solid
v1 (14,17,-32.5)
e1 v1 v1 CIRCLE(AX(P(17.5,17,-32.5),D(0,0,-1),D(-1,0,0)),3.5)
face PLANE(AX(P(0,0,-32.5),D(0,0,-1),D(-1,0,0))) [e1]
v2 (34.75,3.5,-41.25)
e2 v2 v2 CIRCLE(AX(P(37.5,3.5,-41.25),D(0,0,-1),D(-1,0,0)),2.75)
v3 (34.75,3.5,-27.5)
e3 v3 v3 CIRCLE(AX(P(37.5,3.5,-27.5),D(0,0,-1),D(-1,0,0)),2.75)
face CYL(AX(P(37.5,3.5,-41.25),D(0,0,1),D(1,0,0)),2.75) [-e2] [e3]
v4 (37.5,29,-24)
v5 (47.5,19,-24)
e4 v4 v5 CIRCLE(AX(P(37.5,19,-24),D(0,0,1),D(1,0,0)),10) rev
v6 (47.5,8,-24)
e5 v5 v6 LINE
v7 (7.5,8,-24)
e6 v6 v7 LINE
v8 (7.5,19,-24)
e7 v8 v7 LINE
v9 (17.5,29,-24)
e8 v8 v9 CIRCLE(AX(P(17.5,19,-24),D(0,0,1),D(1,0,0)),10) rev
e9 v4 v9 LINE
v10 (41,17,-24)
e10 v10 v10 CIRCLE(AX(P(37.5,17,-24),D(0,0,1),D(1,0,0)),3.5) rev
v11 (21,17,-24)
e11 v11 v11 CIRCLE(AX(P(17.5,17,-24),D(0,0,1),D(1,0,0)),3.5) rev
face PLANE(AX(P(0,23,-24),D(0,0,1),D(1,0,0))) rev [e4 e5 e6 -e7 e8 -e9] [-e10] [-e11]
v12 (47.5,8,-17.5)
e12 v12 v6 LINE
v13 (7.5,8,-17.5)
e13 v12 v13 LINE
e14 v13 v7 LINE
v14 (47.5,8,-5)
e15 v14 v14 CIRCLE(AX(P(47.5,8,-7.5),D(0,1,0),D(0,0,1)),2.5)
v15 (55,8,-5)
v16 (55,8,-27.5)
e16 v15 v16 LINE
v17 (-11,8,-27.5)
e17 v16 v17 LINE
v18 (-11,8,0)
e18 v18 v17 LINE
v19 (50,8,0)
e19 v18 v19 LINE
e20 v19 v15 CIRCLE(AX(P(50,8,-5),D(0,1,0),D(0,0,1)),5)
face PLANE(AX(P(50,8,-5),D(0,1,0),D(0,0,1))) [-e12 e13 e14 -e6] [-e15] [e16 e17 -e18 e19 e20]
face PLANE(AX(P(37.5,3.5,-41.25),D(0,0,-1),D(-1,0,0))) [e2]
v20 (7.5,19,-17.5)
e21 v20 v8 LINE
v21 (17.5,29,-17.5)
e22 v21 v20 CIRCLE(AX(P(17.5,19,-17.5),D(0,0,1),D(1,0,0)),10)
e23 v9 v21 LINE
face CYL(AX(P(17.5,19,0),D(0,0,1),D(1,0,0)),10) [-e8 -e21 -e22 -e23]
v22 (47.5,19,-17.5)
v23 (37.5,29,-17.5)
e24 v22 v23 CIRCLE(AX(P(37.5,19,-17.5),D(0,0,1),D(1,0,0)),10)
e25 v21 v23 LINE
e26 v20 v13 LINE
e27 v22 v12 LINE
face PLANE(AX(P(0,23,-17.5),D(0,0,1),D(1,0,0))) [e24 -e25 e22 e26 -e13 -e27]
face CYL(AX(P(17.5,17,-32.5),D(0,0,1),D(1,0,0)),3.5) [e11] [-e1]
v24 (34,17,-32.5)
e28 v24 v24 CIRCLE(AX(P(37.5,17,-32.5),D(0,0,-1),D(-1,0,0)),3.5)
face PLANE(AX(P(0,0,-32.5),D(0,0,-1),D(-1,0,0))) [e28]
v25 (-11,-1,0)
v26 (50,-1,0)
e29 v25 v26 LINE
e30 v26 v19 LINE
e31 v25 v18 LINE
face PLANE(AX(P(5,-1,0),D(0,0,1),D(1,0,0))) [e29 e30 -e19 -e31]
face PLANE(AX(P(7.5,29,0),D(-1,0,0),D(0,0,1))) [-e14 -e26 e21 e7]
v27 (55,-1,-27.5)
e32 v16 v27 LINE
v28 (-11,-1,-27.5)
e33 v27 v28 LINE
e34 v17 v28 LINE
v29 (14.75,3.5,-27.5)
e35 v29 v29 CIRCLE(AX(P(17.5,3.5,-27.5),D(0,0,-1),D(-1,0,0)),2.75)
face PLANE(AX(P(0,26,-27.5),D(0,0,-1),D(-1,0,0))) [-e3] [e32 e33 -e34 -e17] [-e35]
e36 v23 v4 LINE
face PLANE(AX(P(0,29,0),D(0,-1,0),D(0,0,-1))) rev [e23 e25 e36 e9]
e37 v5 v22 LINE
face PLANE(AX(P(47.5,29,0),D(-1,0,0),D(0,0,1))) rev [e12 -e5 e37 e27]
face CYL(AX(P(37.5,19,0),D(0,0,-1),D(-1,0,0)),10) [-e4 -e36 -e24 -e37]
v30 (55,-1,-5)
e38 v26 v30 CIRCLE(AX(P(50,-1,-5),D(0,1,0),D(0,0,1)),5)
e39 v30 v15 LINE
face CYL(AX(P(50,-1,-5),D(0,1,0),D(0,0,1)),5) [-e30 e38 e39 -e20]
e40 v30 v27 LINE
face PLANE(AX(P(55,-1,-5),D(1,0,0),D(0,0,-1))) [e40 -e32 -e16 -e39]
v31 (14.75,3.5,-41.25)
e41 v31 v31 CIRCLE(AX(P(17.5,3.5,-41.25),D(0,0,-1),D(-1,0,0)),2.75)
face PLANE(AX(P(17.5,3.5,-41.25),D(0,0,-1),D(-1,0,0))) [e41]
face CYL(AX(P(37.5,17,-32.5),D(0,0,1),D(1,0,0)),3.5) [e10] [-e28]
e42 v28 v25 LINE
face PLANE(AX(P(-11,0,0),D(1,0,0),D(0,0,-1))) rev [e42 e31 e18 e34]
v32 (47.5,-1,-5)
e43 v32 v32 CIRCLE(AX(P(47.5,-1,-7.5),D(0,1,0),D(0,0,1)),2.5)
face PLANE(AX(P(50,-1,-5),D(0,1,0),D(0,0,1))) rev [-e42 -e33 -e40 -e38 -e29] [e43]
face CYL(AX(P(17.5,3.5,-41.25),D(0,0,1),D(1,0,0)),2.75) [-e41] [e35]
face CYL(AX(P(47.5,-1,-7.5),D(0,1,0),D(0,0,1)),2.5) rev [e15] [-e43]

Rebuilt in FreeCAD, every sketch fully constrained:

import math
import FreeCAD as App
import Part
import Sketcher
from FreeCAD import Vector


def edges_at(feature, points):
    """Names of the edges that pass closest to the given points."""
    edges = feature.Shape.Edges
    near = lambda p: min(range(len(edges)), key=lambda i: edges[i].distToShape(Part.Vertex(*p))[0])
    return sorted({f"Edge{near(p) + 1}" for p in points})


def add_polygon(sketch, points):
    """Adds a closed chain of lines whose ends are joined by coincident constraints."""
    first, n = sketch.GeometryCount, len(points)
    for a, b in zip(points, points[1:] + points[:1]):
        sketch.addGeometry(Part.LineSegment(App.Vector(*a, 0), App.Vector(*b, 0)), False)
    for i in range(n):
        sketch.addConstraint(Sketcher.Constraint("Coincident", first + i, 2, first + (i + 1) % n, 1))

doc = App.newDocument("Part")
body = doc.addObject("PartDesign::Body", "Body")

sketch1 = body.newObject("Sketcher::SketchObject", "Sketch")
sketch1.AttachmentSupport = (doc.getObject("XZ_Plane"), [""])
sketch1.MapMode = "FlatFace"
sketch1.addGeometry([
    Part.LineSegment(Vector(5, 0, 0), Vector(50, 0, 0)),
    Part.ArcOfCircle(Part.Circle(Vector(50, -5, 0), Vector(0, 0, 1), 5), math.radians(0), math.radians(90)),
    Part.LineSegment(Vector(55, -5, 0), Vector(55, -50, 0)),
    Part.ArcOfCircle(Part.Circle(Vector(50, -50, 0), Vector(0, 0, 1), 5), math.radians(-90), math.radians(0)),
    Part.LineSegment(Vector(50, -55, 0), Vector(5, -55, 0)),
    Part.ArcOfCircle(Part.Circle(Vector(5, -50, 0), Vector(0, 0, 1), 5), math.radians(180), math.radians(270)),
    Part.LineSegment(Vector(0, -50, 0), Vector(0, -5, 0)),
    Part.ArcOfCircle(Part.Circle(Vector(5, -5, 0), Vector(0, 0, 1), 5), math.radians(90), math.radians(180)),
    Part.Circle(Vector(7.5, -7.5, 0), Vector(0, 0, 1), 2.5),
    Part.Circle(Vector(47.5, -7.5, 0), Vector(0, 0, 1), 2.5),
    Part.Circle(Vector(7.5, -47.5, 0), Vector(0, 0, 1), 2.5),
    Part.Circle(Vector(47.5, -47.5, 0), Vector(0, 0, 1), 2.5),
], False)
sketch1.addConstraint([
    Sketcher.Constraint("Tangent", 0, 2, 1, 2),
    Sketcher.Constraint("Tangent", 1, 1, 2, 1),
    Sketcher.Constraint("Tangent", 2, 2, 3, 2),
    Sketcher.Constraint("Tangent", 3, 1, 4, 1),
    Sketcher.Constraint("Tangent", 4, 2, 5, 2),
    Sketcher.Constraint("Tangent", 5, 1, 6, 1),
    Sketcher.Constraint("Tangent", 6, 2, 7, 2),
    Sketcher.Constraint("Tangent", 7, 1, 0, 1),
    Sketcher.Constraint("Horizontal", 0),
    Sketcher.Constraint("Vertical", 2),
    Sketcher.Constraint("Horizontal", 4),
    Sketcher.Constraint("Vertical", 6),
    Sketcher.Constraint("Equal", 1, 3),
    Sketcher.Constraint("Equal", 3, 5),
    Sketcher.Constraint("Equal", 5, 7),
    Sketcher.Constraint("Equal", 8, 9),
    Sketcher.Constraint("Equal", 9, 10),
    Sketcher.Constraint("Equal", 10, 11),
    Sketcher.Constraint("PointOnObject", 0, 2, -1),
    Sketcher.Constraint("PointOnObject", 5, 1, -2),
    Sketcher.Constraint("Horizontal", 8, 3, 9, 3),
    Sketcher.Constraint("Horizontal", 10, 3, 11, 3),
    Sketcher.Constraint("Vertical", 8, 3, 10, 3),
    Sketcher.Constraint("Vertical", 9, 3, 11, 3),
    Sketcher.Constraint("Equal", 4, 2),
    Sketcher.Constraint("Diameter", 8, 5.0),
    Sketcher.Constraint("Radius", 1, 5.0),
    Sketcher.Constraint("DistanceX", 0, 1, 0, 2, 45.0),
    Sketcher.Constraint("DistanceX", 8, 3, 9, 3, 40.0),
    Sketcher.Constraint("DistanceY", 10, 3, 8, 3, 40.0),
    Sketcher.Constraint("DistanceX", -1, 1, 8, 3, 7.5),
    Sketcher.Constraint("DistanceY", 8, 3, -1, 1, 7.5),
])
pad1 = body.newObject("PartDesign::Pad", "Pad")
pad1.Profile = sketch1
pad1.Type = "TwoLengths"
pad1.Length = 8
pad1.Length2 = 1
pad1.Reversed = True

sketch2 = body.newObject("Sketcher::SketchObject", "Sketch001")
sketch2.AttachmentSupport = (doc.getObject("XZ_Plane"), [""])
sketch2.MapMode = "FlatFace"
sketch2.AttachmentOffset = App.Placement(Vector(0, 0, 10), App.Rotation())
sketch2.addGeometry([
    Part.LineSegment(Vector(0, -50, 0), Vector(0, -27.5, 0)),
    Part.LineSegment(Vector(0, -27.5, 0), Vector(55, -27.5, 0)),
    Part.LineSegment(Vector(55, -27.5, 0), Vector(55, -50, 0)),
    Part.ArcOfCircle(Part.Circle(Vector(50, -50, 0), Vector(0, 0, 1), 5), math.radians(-90), math.radians(0)),
    Part.LineSegment(Vector(50, -55, 0), Vector(5, -55, 0)),
    Part.ArcOfCircle(Part.Circle(Vector(5, -50, 0), Vector(0, 0, 1), 5), math.radians(180), math.radians(270)),
    Part.Circle(Vector(7.5, -47.5, 0), Vector(0, 0, 1), 2.5),
    Part.Circle(Vector(47.5, -47.5, 0), Vector(0, 0, 1), 2.5),
], False)
sketch2.addConstraint([
    Sketcher.Constraint("Coincident", 0, 2, 1, 1),
    Sketcher.Constraint("Coincident", 1, 2, 2, 1),
    Sketcher.Constraint("Tangent", 2, 2, 3, 2),
    Sketcher.Constraint("Tangent", 3, 1, 4, 1),
    Sketcher.Constraint("Tangent", 4, 2, 5, 2),
    Sketcher.Constraint("Tangent", 5, 1, 0, 1),
    Sketcher.Constraint("Vertical", 0),
    Sketcher.Constraint("Horizontal", 1),
    Sketcher.Constraint("Vertical", 2),
    Sketcher.Constraint("Horizontal", 4),
    Sketcher.Constraint("Equal", 3, 5),
    Sketcher.Constraint("Equal", 6, 7),
    Sketcher.Constraint("PointOnObject", 0, 2, -2),
    Sketcher.Constraint("Horizontal", 6, 3, 7, 3),
    Sketcher.Constraint("Diameter", 6, 5.0),
    Sketcher.Constraint("Radius", 3, 5.0),
    Sketcher.Constraint("DistanceX", 1, 1, 1, 2, 55.0),
    Sketcher.Constraint("DistanceY", 0, 1, 0, 2, 22.5),
    Sketcher.Constraint("DistanceY", 3, 3, -1, 1, 50.0),
    Sketcher.Constraint("DistanceX", 6, 3, 7, 3, 40.0),
    Sketcher.Constraint("DistanceY", 6, 3, 0, 2, 20.0),
    Sketcher.Constraint("DistanceX", -1, 1, 6, 3, 7.5),
])
pocket1 = body.newObject("PartDesign::Pocket", "Pocket")
pocket1.Profile = sketch2
pocket1.Length = 18

sketch3 = body.newObject("Sketcher::SketchObject", "Sketch002")
sketch3.AttachmentSupport = (doc.getObject("XY_Plane"), [""])
sketch3.MapMode = "FlatFace"
sketch3.AttachmentOffset = App.Placement(Vector(0, 0, -27.5), App.Rotation())
sketch3.addGeometry([
    Part.Circle(Vector(37.5, 3.5, 0), Vector(0, 0, 1), 2.8),
    Part.Circle(Vector(17.5, 3.5, 0), Vector(0, 0, 1), 2.8),
], False)
sketch3.addConstraint([
    Sketcher.Constraint("Equal", 0, 1),
    Sketcher.Constraint("Horizontal", 0, 3, 1, 3),
    Sketcher.Constraint("Diameter", 0, 5.5),
    Sketcher.Constraint("DistanceX", 1, 3, 0, 3, 20.0),
    Sketcher.Constraint("DistanceX", -1, 1, 0, 3, 37.5),
    Sketcher.Constraint("DistanceY", -1, 1, 0, 3, 3.5),
])
pad2 = body.newObject("PartDesign::Pad", "Pad001")
pad2.Profile = sketch3
pad2.Length = 13.75
pad2.Reversed = True

sketch4 = body.newObject("Sketcher::SketchObject", "Sketch003")
sketch4.AttachmentSupport = (doc.getObject("XZ_Plane"), [""])
sketch4.MapMode = "FlatFace"
sketch4.AttachmentOffset = App.Placement(Vector(0, 0, -8), App.Rotation())
add_polygon(sketch4, [(23, -24), (23, -18), (32, -18), (32, -24)])
sketch4.addConstraint([
    Sketcher.Constraint("Vertical", 0),
    Sketcher.Constraint("Horizontal", 1),
    Sketcher.Constraint("Vertical", 2),
    Sketcher.Constraint("Horizontal", 3),
    Sketcher.Constraint("DistanceX", 1, 1, 1, 2, 9.0),
    Sketcher.Constraint("DistanceY", 0, 1, 0, 2, 6.5),
    Sketcher.Constraint("DistanceX", -1, 1, 0, 2, 23.0),
    Sketcher.Constraint("DistanceY", 2, 2, -1, 1, 24.0),
])
pad3 = body.newObject("PartDesign::Pad", "Pad002")
pad3.Profile = sketch4
pad3.Length = 15
pad3.Reversed = True

sketch5 = body.newObject("Sketcher::SketchObject", "Sketch004")
sketch5.AttachmentSupport = (doc.getObject("XY_Plane"), [""])
sketch5.MapMode = "FlatFace"
sketch5.AttachmentOffset = App.Placement(Vector(0, 0, -24), App.Rotation())
sketch5.addGeometry([
    Part.ArcOfCircle(Part.Circle(Vector(27.5, 16, 0), Vector(0, 0, 1), 3.5), math.radians(-180), math.radians(-122)),
    Part.ArcOfCircle(Part.Circle(Vector(27.5, 16, 0), Vector(0, 0, 1), 3.5), math.radians(-90), math.radians(180)),
    Part.ArcOfCircle(Part.Circle(Vector(27.5, 16, 0), Vector(0, 0, 1), 3.5), math.radians(-117), math.radians(-90)),
    Part.ArcOfCircle(Part.Circle(Vector(25.77, 12.95, 0), Vector(0, 0, 1), 0.16), math.radians(-28), math.radians(149)),
], False)
sketch5.addConstraint([
    Sketcher.Constraint("Tangent", 0, 1, 1, 2),
    Sketcher.Constraint("Tangent", 1, 1, 2, 2),
    Sketcher.Constraint("Coincident", 2, 1, 3, 1),
    Sketcher.Constraint("Coincident", 3, 2, 0, 2),
    Sketcher.Constraint("Coincident", 2, 3, 0, 3),
    Sketcher.Constraint("Horizontal", 2, 3, 0, 1),
    Sketcher.Constraint("Vertical", 2, 3, 1, 1),
    Sketcher.Constraint("Radius", 0, 3.5),
    Sketcher.Constraint("DistanceY", -1, 1, 0, 3, 16.0),
    Sketcher.Constraint("DistanceX", -1, 1, 0, 1, 24.0),
    Sketcher.Constraint("Radius", 3, 0.161043),
    Sketcher.Constraint("DistanceY", -1, 1, 3, 3, 12.954799),
    Sketcher.Constraint("DistanceX", -1, 1, 2, 1, 25.916579),
])
pad4 = body.newObject("PartDesign::Pad", "Pad003")
pad4.Profile = sketch5
pad4.Length = 8.5
pad4.Reversed = True

sketch6 = body.newObject("Sketcher::SketchObject", "Sketch005")
sketch6.AttachmentSupport = (doc.getObject("XZ_Plane"), [""])
sketch6.MapMode = "FlatFace"
sketch6.AttachmentOffset = App.Placement(Vector(0, 0, -23), App.Rotation())
add_polygon(sketch6, [(23, -24), (23, -18), (32, -18), (32, -24)])
sketch6.addConstraint([
    Sketcher.Constraint("Vertical", 0),
    Sketcher.Constraint("Horizontal", 1),
    Sketcher.Constraint("Vertical", 2),
    Sketcher.Constraint("Horizontal", 3),
    Sketcher.Constraint("DistanceX", 1, 1, 1, 2, 9.0),
    Sketcher.Constraint("DistanceY", 0, 1, 0, 2, 6.5),
    Sketcher.Constraint("DistanceX", -1, 1, 0, 2, 23.0),
    Sketcher.Constraint("DistanceY", 2, 2, -1, 1, 24.0),
])
pad5 = body.newObject("PartDesign::Pad", "Pad004")
pad5.Profile = sketch6
pad5.Length = 6
pad5.Reversed = True

sketch7 = body.newObject("Sketcher::SketchObject", "Sketch006")
sketch7.AttachmentSupport = (doc.getObject("XZ_Plane"), [""])
sketch7.MapMode = "FlatFace"
sketch7.AttachmentOffset = App.Placement(Vector(0, 0, -8), App.Rotation())
add_polygon(sketch7, [(8, -24), (8, -18), (23, -18), (23, -24)])
add_polygon(sketch7, [(32, -24), (32, -18), (48, -18), (48, -24)])
sketch7.addConstraint([
    Sketcher.Constraint("Vertical", 0),
    Sketcher.Constraint("Horizontal", 1),
    Sketcher.Constraint("Vertical", 2),
    Sketcher.Constraint("Horizontal", 3),
    Sketcher.Constraint("Vertical", 4),
    Sketcher.Constraint("Horizontal", 5),
    Sketcher.Constraint("Vertical", 6),
    Sketcher.Constraint("Horizontal", 7),
    Sketcher.Constraint("Horizontal", 1, 2, 4, 2),
    Sketcher.Constraint("Horizontal", 3, 2, 6, 2),
    Sketcher.Constraint("Equal", 3, 5),
    Sketcher.Constraint("DistanceX", 1, 1, 1, 2, 15.5),
    Sketcher.Constraint("DistanceY", 0, 1, 0, 2, 6.5),
    Sketcher.Constraint("DistanceX", -1, 1, 1, 2, 23.0),
    Sketcher.Constraint("DistanceY", 2, 2, -1, 1, 24.0),
    Sketcher.Constraint("DistanceX", -1, 1, 4, 2, 32.0),
])
pad6 = body.newObject("PartDesign::Pad", "Pad005")
pad6.Profile = sketch7
pad6.Length = 21
pad6.Reversed = True

sketch8 = body.newObject("Sketcher::SketchObject", "Sketch007")
sketch8.AttachmentSupport = (doc.getObject("XY_Plane"), [""])
sketch8.MapMode = "FlatFace"
sketch8.AttachmentOffset = App.Placement(Vector(0, 0, -24), App.Rotation())
sketch8.addGeometry([
    Part.ArcOfCircle(Part.Circle(Vector(17.5, 17, 0), Vector(0, 0, 1), 3.5), math.radians(0), math.radians(180)),
    Part.ArcOfCircle(Part.Circle(Vector(17.5, 17, 0), Vector(0, 0, 1), 3.5), math.radians(-90), math.radians(0)),
    Part.ArcOfCircle(Part.Circle(Vector(17.5, 17, 0), Vector(0, 0, 1), 3.5), math.radians(-180), math.radians(-90)),
    Part.ArcOfCircle(Part.Circle(Vector(37.5, 17, 0), Vector(0, 0, 1), 3.5), math.radians(-90), math.radians(0)),
    Part.ArcOfCircle(Part.Circle(Vector(37.5, 17, 0), Vector(0, 0, 1), 3.5), math.radians(-180), math.radians(-90)),
    Part.ArcOfCircle(Part.Circle(Vector(37.5, 17, 0), Vector(0, 0, 1), 3.5), math.radians(0), math.radians(180)),
], False)
sketch8.addConstraint([
    Sketcher.Constraint("Tangent", 0, 1, 1, 2),
    Sketcher.Constraint("Tangent", 1, 1, 2, 2),
    Sketcher.Constraint("Tangent", 2, 1, 0, 2),
    Sketcher.Constraint("Tangent", 3, 1, 4, 2),
    Sketcher.Constraint("Tangent", 4, 1, 5, 2),
    Sketcher.Constraint("Tangent", 5, 1, 3, 2),
    Sketcher.Constraint("Equal", 2, 3),
    Sketcher.Constraint("Horizontal", 2, 3, 3, 3),
    Sketcher.Constraint("Horizontal", 5, 3, 0, 1),
    Sketcher.Constraint("Horizontal", 0, 1, 2, 1),
    Sketcher.Constraint("Horizontal", 2, 1, 4, 1),
    Sketcher.Constraint("Horizontal", 4, 1, 5, 1),
    Sketcher.Constraint("Vertical", 2, 3, 1, 1),
    Sketcher.Constraint("Vertical", 5, 3, 3, 1),
    Sketcher.Constraint("Radius", 0, 3.5),
    Sketcher.Constraint("DistanceY", -1, 1, 0, 3, 17.0),
    Sketcher.Constraint("DistanceX", -1, 1, 0, 1, 21.0),
    Sketcher.Constraint("DistanceX", -1, 1, 4, 1, 34.0),
])
pad7 = body.newObject("PartDesign::Pad", "Pad006")
pad7.Profile = sketch8
pad7.Length = 8.5
pad7.Reversed = True

sketch9 = body.newObject("Sketcher::SketchObject", "Sketch008")
sketch9.AttachmentSupport = (doc.getObject("XY_Plane"), [""])
sketch9.MapMode = "FlatFace"
sketch9.AttachmentOffset = App.Placement(Vector(0, 0, -24), App.Rotation())
sketch9.addGeometry(Part.Circle(Vector(27.5, 16, 0), Vector(0, 0, 1), 3.5), False)
sketch9.addConstraint([
    Sketcher.Constraint("Diameter", 0, 7.0),
    Sketcher.Constraint("DistanceY", -1, 1, 0, 3, 16.0),
    Sketcher.Constraint("DistanceX", -1, 1, 0, 3, 27.5),
])
pocket2 = body.newObject("PartDesign::Pocket", "Pocket001")
pocket2.Profile = sketch9
pocket2.Length = 8.5
doc.recompute()

fillet = body.newObject("PartDesign::Fillet", "Fillet")
fillet.Base = (pocket2, edges_at(pocket2, [(7.5, 29, -20.75), (47.5, 29, -20.75)]))
fillet.Radius = 10

sketch10 = body.newObject("Sketcher::SketchObject", "Sketch009")
sketch10.AttachmentSupport = (doc.getObject("YZ_Plane"), [""])
sketch10.MapMode = "FlatFace"
add_polygon(sketch10, [(8, -28), (-1, -28), (-1, 0), (8, 0)])
sketch10.addConstraint([
    Sketcher.Constraint("Horizontal", 0),
    Sketcher.Constraint("Vertical", 1),
    Sketcher.Constraint("Horizontal", 2),
    Sketcher.Constraint("Vertical", 3),
    Sketcher.Constraint("PointOnObject", 1, 2, -1),
    Sketcher.Constraint("DistanceX", 0, 2, 0, 1, 9.0),
    Sketcher.Constraint("DistanceY", 1, 1, 1, 2, 27.5),
    Sketcher.Constraint("DistanceX", 0, 2, -1, 1, 1.0),
])
pad8 = body.newObject("PartDesign::Pad", "Pad007")
pad8.Profile = sketch10
pad8.Type = "TwoLengths"
pad8.Length = 11
pad8.Length2 = 10
pad8.Reversed = True

doc.recompute()
